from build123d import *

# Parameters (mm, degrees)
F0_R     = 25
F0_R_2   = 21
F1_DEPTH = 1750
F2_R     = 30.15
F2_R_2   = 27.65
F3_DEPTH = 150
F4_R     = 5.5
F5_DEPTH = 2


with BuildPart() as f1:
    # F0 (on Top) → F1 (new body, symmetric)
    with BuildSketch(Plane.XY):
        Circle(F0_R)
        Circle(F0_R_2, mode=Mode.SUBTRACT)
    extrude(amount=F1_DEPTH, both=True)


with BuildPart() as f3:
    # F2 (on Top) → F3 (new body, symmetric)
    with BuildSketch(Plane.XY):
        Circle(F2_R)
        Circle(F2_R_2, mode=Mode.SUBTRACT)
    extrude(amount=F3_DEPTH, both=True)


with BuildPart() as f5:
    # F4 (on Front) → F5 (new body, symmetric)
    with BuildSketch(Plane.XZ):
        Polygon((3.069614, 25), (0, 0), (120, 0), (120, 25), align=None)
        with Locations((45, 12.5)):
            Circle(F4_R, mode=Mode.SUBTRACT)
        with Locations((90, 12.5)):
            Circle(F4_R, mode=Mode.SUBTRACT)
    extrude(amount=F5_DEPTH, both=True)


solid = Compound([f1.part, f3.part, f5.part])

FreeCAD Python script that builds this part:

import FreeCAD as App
import Part
import Sketcher
Q = App.Units.Quantity

doc = App.newDocument("Part")
params = doc.addObject("Spreadsheet::Sheet", "Params")
for row, (alias, value) in enumerate([
    ("sketch1_diameter", "50 mm"),
    ("sketch1_diameter2", "42 mm"),
    ("pad1_length", "3500 mm"),
    ("sketch2_diameter", "60.3 mm"),
    ("sketch2_diameter2", "55.3 mm"),
    ("pad2_length", "300 mm"),
    ("sketch3_diameter", "11 mm"),
    ("sketch3_width", "120 mm"),
    ("sketch3_height", "25 mm"),
    ("pad3_length", "4 mm"),
], start=1):
    params.set(f"A{row}", alias)
    params.set(f"B{row}", "=" + value)
    params.setAlias(f"B{row}", alias)

body = doc.addObject("PartDesign::Body", "Body")

# Sketch on XY plane
sketch1 = doc.addObject("Sketcher::SketchObject", "Sketch")
body.addObject(sketch1)
sketch1.AttachmentSupport = (doc.XY_Plane, [""])
sketch1.MapMode = "FlatFace"
sketch1.addGeometry(Part.Circle(App.Vector(0, 0, 0), App.Vector(0, 0, 1), 25), False)
sketch1.addGeometry(Part.Circle(App.Vector(0, 0, 0), App.Vector(0, 0, 1), 21), False)
sketch1.addConstraint(Sketcher.Constraint("Coincident", 0, 3, -1, 1))
sketch1.addConstraint(Sketcher.Constraint("Coincident", 1, 3, -1, 1))
sketch1.addConstraint(Sketcher.Constraint("Diameter", 0, 50.0))
sketch1.addConstraint(Sketcher.Constraint("Diameter", 1, 42.0))
sketch1.setExpression("Constraints[2]", "Params.sketch1_diameter")
sketch1.setExpression("Constraints[3]", "Params.sketch1_diameter2")
pad1 = doc.addObject("PartDesign::Pad", "Pad")
body.addObject(pad1)
pad1.Profile = sketch1
pad1.setExpression("Length", "Params.pad1_length")
pad1.Midplane = True
body2 = doc.addObject("PartDesign::Body", "Body001")

# Sketch on XY plane
sketch2 = doc.addObject("Sketcher::SketchObject", "Sketch001")
body2.addObject(sketch2)
sketch2.AttachmentSupport = (doc.getObject("XY_Plane001"), [""])
sketch2.MapMode = "FlatFace"
sketch2.addGeometry(Part.Circle(App.Vector(0, 0, 0), App.Vector(0, 0, 1), 30), False)
sketch2.addGeometry(Part.Circle(App.Vector(0, 0, 0), App.Vector(0, 0, 1), 28), False)
sketch2.addConstraint(Sketcher.Constraint("Coincident", 0, 3, -1, 1))
sketch2.addConstraint(Sketcher.Constraint("Coincident", 1, 3, -1, 1))
sketch2.addConstraint(Sketcher.Constraint("Diameter", 0, 60.3))
sketch2.addConstraint(Sketcher.Constraint("Diameter", 1, 55.3))
sketch2.setExpression("Constraints[2]", "Params.sketch2_diameter")
sketch2.setExpression("Constraints[3]", "Params.sketch2_diameter2")
pad2 = doc.addObject("PartDesign::Pad", "Pad001")
body2.addObject(pad2)
pad2.Profile = sketch2
pad2.setExpression("Length", "Params.pad2_length")
pad2.Midplane = True
body3 = doc.addObject("PartDesign::Body", "Body002")

# Sketch on XZ plane
sketch3 = doc.addObject("Sketcher::SketchObject", "Sketch002")
body3.addObject(sketch3)
sketch3.AttachmentSupport = (doc.getObject("XZ_Plane002"), [""])
sketch3.MapMode = "FlatFace"
sketch3.addGeometry(Part.LineSegment(App.Vector(3, 25, 0), App.Vector(0, 0, 0)), False)
sketch3.addGeometry(Part.LineSegment(App.Vector(0, 0, 0), App.Vector(120, 0, 0)), False)
sketch3.addGeometry(Part.LineSegment(App.Vector(120, 0, 0), App.Vector(120, 25, 0)), False)
sketch3.addGeometry(Part.LineSegment(App.Vector(120, 25, 0), App.Vector(3, 25, 0)), False)
sketch3.addGeometry(Part.Circle(App.Vector(45, 12, 0), App.Vector(0, 0, 1), 6), False)
sketch3.addGeometry(Part.Circle(App.Vector(90, 12, 0), App.Vector(0, 0, 1), 6), False)
sketch3.addConstraint(Sketcher.Constraint("Coincident", 0, 2, 1, 1))
sketch3.addConstraint(Sketcher.Constraint("Coincident", 1, 2, 2, 1))
sketch3.addConstraint(Sketcher.Constraint("Coincident", 2, 2, 3, 1))
sketch3.addConstraint(Sketcher.Constraint("Coincident", 3, 2, 0, 1))
sketch3.addConstraint(Sketcher.Constraint("Horizontal", 1))
sketch3.addConstraint(Sketcher.Constraint("Vertical", 2))
sketch3.addConstraint(Sketcher.Constraint("Horizontal", 3))
sketch3.addConstraint(Sketcher.Constraint("Coincident", 0, 2, -1, 1))
sketch3.addConstraint(Sketcher.Constraint("Equal", 4, 5))
sketch3.addConstraint(Sketcher.Constraint("Horizontal", 4, 3, 5, 3))
sketch3.addConstraint(Sketcher.Constraint("Diameter", 4, 11.0))
sketch3.addConstraint(Sketcher.Constraint("DistanceX", 1, 1, 1, 2, 120.0))
sketch3.addConstraint(Sketcher.Constraint("DistanceY", 2, 1, 2, 2, 25.0))
sketch3.addConstraint(Sketcher.Constraint("Angle", 0, Q("-97 deg")))
sketch3.addConstraint(Sketcher.Constraint("DistanceX", -1, 1, 4, 3, 45.0))
sketch3.addConstraint(Sketcher.Constraint("DistanceX", -1, 1, 5, 3, 90.0))
sketch3.addConstraint(Sketcher.Constraint("DistanceY", -1, 1, 4, 3, 12.5))
sketch3.setExpression("Constraints[10]", "Params.sketch3_diameter")
sketch3.setExpression("Constraints[11]", "Params.sketch3_width")
sketch3.setExpression("Constraints[12]", "Params.sketch3_height")
pad3 = doc.addObject("PartDesign::Pad", "Pad002")
body3.addObject(pad3)
pad3.Profile = sketch3
pad3.setExpression("Length", "Params.pad3_length")
pad3.Midplane = True

doc.recompute()
